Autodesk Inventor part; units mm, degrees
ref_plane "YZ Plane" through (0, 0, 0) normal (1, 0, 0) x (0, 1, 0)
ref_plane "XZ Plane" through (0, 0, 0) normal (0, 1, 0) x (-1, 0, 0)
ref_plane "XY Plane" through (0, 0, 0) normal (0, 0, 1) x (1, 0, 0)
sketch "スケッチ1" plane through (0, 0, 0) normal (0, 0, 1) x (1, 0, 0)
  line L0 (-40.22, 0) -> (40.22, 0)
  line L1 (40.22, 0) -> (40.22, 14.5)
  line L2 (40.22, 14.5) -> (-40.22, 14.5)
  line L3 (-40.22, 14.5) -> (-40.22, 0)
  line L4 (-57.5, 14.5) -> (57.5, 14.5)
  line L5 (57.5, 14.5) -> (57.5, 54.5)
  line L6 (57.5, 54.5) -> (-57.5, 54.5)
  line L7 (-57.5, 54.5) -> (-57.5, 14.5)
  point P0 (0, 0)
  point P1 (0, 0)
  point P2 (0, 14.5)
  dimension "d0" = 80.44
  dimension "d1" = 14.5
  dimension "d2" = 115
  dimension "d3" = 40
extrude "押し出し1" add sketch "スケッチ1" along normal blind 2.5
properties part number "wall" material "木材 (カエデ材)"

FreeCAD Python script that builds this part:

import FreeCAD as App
import Part
import Sketcher

V = App.Vector

doc = App.newDocument("Part")
body = doc.addObject("PartDesign::Body", "Body")

# Sketch on XY plane
sketch1 = body.newObject("Sketcher::SketchObject", "Sketch")
sketch1.AttachmentSupport = (doc.getObject("XY_Plane"), [""])
sketch1.MapMode = "FlatFace"
sketch1.addGeometry([
    Part.LineSegment(V(-40, 14, 0), V(-40, 0, 0)),  # 0
    Part.LineSegment(V(-40, 0, 0), V(40, 0, 0)),  # 1
    Part.LineSegment(V(40, 0, 0), V(40, 14, 0)),  # 2
    Part.LineSegment(V(40, 14, 0), V(58, 14, 0)),  # 3
    Part.LineSegment(V(58, 14, 0), V(58, 54, 0)),  # 4
    Part.LineSegment(V(58, 54, 0), V(-58, 54, 0)),  # 5
    Part.LineSegment(V(-58, 54, 0), V(-58, 14, 0)),  # 6
    Part.LineSegment(V(-58, 14, 0), V(-40, 14, 0)),  # 7
], False)
sketch1.addConstraint([
    Sketcher.Constraint("Coincident", 0, 2, 1, 1),
    Sketcher.Constraint("Coincident", 1, 2, 2, 1),
    Sketcher.Constraint("Coincident", 2, 2, 3, 1),
    Sketcher.Constraint("Coincident", 3, 2, 4, 1),
    Sketcher.Constraint("Coincident", 4, 2, 5, 1),
    Sketcher.Constraint("Coincident", 5, 2, 6, 1),
    Sketcher.Constraint("Coincident", 6, 2, 7, 1),
    Sketcher.Constraint("Coincident", 7, 2, 0, 1),
    Sketcher.Constraint("Vertical", 0),
    Sketcher.Constraint("Horizontal", 1),
    Sketcher.Constraint("Vertical", 2),
    Sketcher.Constraint("Horizontal", 3),
    Sketcher.Constraint("Vertical", 4),
    Sketcher.Constraint("Horizontal", 5),
    Sketcher.Constraint("Vertical", 6),
    Sketcher.Constraint("Horizontal", 7),
    Sketcher.Constraint("Symmetric", 0, 2, 1, 2, -1, 1),
    Sketcher.Constraint("Symmetric", 3, 2, 6, 2, -2),
    Sketcher.Constraint("DistanceX", 5, 2, 5, 1, 115.0),
    Sketcher.Constraint("DistanceY", 4, 1, 4, 2, 40.0),
    Sketcher.Constraint("DistanceY", 0, 2, 0, 1, 14.5),
    Sketcher.Constraint("DistanceX", 1, 1, 1, 2, 80.44),
])
pad1 = body.newObject("PartDesign::Pad", "Pad")
pad1.Profile = sketch1
pad1.Length = 2.5

doc.recompute()
